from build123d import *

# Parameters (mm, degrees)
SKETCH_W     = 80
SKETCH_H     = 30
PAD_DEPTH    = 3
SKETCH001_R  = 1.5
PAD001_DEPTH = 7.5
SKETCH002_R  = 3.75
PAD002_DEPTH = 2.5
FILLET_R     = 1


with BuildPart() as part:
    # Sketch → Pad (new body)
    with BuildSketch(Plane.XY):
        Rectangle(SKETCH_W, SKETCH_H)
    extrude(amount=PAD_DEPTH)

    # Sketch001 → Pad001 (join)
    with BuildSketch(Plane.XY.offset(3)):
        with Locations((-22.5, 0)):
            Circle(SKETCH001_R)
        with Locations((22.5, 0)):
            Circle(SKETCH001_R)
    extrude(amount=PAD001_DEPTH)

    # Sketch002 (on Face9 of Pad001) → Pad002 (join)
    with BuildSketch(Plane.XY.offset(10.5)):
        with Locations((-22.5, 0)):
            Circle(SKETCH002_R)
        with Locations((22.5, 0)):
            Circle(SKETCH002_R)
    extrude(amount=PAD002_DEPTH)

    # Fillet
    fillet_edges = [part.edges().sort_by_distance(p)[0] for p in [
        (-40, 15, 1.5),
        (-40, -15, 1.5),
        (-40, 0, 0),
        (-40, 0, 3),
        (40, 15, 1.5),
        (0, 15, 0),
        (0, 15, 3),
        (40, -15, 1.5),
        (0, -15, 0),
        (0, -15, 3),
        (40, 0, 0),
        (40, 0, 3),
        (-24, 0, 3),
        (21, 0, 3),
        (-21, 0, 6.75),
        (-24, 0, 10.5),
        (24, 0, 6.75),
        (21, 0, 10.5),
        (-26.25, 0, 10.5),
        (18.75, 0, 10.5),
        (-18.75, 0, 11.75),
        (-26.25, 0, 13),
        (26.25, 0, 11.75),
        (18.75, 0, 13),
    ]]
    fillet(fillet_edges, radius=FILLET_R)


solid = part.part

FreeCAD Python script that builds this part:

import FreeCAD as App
import Part
import Sketcher

V = App.Vector
Q = App.Units.Quantity


def add_polygon(sketch, points):
    """Adds a closed chain of lines whose ends are joined by coincident constraints."""
    first, n = sketch.GeometryCount, len(points)
    for a, b in zip(points, points[1:] + points[:1]):
        sketch.addGeometry(Part.LineSegment(App.Vector(*a, 0), App.Vector(*b, 0)), False)
    for i in range(n):
        sketch.addConstraint(Sketcher.Constraint("Coincident", first + i, 2, first + (i + 1) % n, 1))

doc = App.newDocument("Part")
body = doc.addObject("PartDesign::Body", "Body")

# Sketch on XY plane
sketch1 = body.newObject("Sketcher::SketchObject", "Sketch")
sketch1.AttachmentSupport = (doc.getObject("XY_Plane"), [""])
sketch1.MapMode = "FlatFace"
add_polygon(sketch1, [(-40, 15), (-40, -15), (40, -15), (40, 15)])  # lines 0-3
sketch1.addConstraint([
    Sketcher.Constraint("Vertical", 0),
    Sketcher.Constraint("Horizontal", 1),
    Sketcher.Constraint("Vertical", 2),
    Sketcher.Constraint("Horizontal", 3),
    Sketcher.Constraint("Symmetric", 0, 2, 2, 2, -1, 1),
    Sketcher.Constraint("DistanceX", 1, 1, 1, 2, Q("80 mm")),
    Sketcher.Constraint("DistanceY", 0, 2, 0, 1, Q("30 mm")),
])
pad1 = body.newObject("PartDesign::Pad", "Pad")
pad1.Profile = sketch1
pad1.Length = 3

# Sketch on XY plane
sketch2 = body.newObject("Sketcher::SketchObject", "Sketch001")
sketch2.AttachmentSupport = (doc.getObject("XY_Plane"), [""])
sketch2.MapMode = "FlatFace"
sketch2.AttachmentOffset = App.Placement(V(0, 0, 3), App.Rotation())
sketch2.addGeometry([
    Part.Circle(V(-22.5, 0, 0), V(0, 0, 1), 1.5),
    Part.Circle(V(22.5, 0, 0), V(0, 0, 1), 1.5),
], False)
sketch2.addConstraint([
    Sketcher.Constraint("Equal", 0, 1),
    Sketcher.Constraint("Symmetric", 0, 3, 1, 3, -1, 1),
    Sketcher.Constraint("PointOnObject", 0, 3, -1),
    Sketcher.Constraint("Diameter", 0, Q("3 mm")),
    Sketcher.Constraint("DistanceX", 0, 3, 1, 3, Q("45 mm")),
])
pad2 = body.newObject("PartDesign::Pad", "Pad001")
pad2.Profile = sketch2
pad2.Length = 7.5

# Sketch on XY plane
sketch3 = body.newObject("Sketcher::SketchObject", "Sketch002")
sketch3.AttachmentSupport = (doc.getObject("XY_Plane"), [""])
sketch3.MapMode = "FlatFace"
sketch3.AttachmentOffset = App.Placement(V(0, 0, 10.5), App.Rotation())
sketch3.addGeometry([
    Part.Circle(V(-22.5, 0, 0), V(0, 0, 1), 3.75),
    Part.Circle(V(22.5, 0, 0), V(0, 0, 1), 3.75),
], False)
sketch3.addConstraint([
    Sketcher.Constraint("Equal", 0, 1),
    Sketcher.Constraint("Symmetric", 0, 3, 1, 3, -1, 1),
    Sketcher.Constraint("PointOnObject", 0, 3, -1),
    Sketcher.Constraint("Diameter", 0, Q("7.5 mm")),
    Sketcher.Constraint("DistanceX", 0, 3, 1, 3, Q("45 mm")),
])
pad3 = body.newObject("PartDesign::Pad", "Pad002")
pad3.Profile = sketch3
pad3.Length = 2.5
doc.recompute()

fillet = body.newObject("PartDesign::Fillet", "Fillet")
fillet.Base = (pad3, ["Edge1"])
fillet.UseAllEdges = True
fillet.Radius = 1

doc.recompute()
